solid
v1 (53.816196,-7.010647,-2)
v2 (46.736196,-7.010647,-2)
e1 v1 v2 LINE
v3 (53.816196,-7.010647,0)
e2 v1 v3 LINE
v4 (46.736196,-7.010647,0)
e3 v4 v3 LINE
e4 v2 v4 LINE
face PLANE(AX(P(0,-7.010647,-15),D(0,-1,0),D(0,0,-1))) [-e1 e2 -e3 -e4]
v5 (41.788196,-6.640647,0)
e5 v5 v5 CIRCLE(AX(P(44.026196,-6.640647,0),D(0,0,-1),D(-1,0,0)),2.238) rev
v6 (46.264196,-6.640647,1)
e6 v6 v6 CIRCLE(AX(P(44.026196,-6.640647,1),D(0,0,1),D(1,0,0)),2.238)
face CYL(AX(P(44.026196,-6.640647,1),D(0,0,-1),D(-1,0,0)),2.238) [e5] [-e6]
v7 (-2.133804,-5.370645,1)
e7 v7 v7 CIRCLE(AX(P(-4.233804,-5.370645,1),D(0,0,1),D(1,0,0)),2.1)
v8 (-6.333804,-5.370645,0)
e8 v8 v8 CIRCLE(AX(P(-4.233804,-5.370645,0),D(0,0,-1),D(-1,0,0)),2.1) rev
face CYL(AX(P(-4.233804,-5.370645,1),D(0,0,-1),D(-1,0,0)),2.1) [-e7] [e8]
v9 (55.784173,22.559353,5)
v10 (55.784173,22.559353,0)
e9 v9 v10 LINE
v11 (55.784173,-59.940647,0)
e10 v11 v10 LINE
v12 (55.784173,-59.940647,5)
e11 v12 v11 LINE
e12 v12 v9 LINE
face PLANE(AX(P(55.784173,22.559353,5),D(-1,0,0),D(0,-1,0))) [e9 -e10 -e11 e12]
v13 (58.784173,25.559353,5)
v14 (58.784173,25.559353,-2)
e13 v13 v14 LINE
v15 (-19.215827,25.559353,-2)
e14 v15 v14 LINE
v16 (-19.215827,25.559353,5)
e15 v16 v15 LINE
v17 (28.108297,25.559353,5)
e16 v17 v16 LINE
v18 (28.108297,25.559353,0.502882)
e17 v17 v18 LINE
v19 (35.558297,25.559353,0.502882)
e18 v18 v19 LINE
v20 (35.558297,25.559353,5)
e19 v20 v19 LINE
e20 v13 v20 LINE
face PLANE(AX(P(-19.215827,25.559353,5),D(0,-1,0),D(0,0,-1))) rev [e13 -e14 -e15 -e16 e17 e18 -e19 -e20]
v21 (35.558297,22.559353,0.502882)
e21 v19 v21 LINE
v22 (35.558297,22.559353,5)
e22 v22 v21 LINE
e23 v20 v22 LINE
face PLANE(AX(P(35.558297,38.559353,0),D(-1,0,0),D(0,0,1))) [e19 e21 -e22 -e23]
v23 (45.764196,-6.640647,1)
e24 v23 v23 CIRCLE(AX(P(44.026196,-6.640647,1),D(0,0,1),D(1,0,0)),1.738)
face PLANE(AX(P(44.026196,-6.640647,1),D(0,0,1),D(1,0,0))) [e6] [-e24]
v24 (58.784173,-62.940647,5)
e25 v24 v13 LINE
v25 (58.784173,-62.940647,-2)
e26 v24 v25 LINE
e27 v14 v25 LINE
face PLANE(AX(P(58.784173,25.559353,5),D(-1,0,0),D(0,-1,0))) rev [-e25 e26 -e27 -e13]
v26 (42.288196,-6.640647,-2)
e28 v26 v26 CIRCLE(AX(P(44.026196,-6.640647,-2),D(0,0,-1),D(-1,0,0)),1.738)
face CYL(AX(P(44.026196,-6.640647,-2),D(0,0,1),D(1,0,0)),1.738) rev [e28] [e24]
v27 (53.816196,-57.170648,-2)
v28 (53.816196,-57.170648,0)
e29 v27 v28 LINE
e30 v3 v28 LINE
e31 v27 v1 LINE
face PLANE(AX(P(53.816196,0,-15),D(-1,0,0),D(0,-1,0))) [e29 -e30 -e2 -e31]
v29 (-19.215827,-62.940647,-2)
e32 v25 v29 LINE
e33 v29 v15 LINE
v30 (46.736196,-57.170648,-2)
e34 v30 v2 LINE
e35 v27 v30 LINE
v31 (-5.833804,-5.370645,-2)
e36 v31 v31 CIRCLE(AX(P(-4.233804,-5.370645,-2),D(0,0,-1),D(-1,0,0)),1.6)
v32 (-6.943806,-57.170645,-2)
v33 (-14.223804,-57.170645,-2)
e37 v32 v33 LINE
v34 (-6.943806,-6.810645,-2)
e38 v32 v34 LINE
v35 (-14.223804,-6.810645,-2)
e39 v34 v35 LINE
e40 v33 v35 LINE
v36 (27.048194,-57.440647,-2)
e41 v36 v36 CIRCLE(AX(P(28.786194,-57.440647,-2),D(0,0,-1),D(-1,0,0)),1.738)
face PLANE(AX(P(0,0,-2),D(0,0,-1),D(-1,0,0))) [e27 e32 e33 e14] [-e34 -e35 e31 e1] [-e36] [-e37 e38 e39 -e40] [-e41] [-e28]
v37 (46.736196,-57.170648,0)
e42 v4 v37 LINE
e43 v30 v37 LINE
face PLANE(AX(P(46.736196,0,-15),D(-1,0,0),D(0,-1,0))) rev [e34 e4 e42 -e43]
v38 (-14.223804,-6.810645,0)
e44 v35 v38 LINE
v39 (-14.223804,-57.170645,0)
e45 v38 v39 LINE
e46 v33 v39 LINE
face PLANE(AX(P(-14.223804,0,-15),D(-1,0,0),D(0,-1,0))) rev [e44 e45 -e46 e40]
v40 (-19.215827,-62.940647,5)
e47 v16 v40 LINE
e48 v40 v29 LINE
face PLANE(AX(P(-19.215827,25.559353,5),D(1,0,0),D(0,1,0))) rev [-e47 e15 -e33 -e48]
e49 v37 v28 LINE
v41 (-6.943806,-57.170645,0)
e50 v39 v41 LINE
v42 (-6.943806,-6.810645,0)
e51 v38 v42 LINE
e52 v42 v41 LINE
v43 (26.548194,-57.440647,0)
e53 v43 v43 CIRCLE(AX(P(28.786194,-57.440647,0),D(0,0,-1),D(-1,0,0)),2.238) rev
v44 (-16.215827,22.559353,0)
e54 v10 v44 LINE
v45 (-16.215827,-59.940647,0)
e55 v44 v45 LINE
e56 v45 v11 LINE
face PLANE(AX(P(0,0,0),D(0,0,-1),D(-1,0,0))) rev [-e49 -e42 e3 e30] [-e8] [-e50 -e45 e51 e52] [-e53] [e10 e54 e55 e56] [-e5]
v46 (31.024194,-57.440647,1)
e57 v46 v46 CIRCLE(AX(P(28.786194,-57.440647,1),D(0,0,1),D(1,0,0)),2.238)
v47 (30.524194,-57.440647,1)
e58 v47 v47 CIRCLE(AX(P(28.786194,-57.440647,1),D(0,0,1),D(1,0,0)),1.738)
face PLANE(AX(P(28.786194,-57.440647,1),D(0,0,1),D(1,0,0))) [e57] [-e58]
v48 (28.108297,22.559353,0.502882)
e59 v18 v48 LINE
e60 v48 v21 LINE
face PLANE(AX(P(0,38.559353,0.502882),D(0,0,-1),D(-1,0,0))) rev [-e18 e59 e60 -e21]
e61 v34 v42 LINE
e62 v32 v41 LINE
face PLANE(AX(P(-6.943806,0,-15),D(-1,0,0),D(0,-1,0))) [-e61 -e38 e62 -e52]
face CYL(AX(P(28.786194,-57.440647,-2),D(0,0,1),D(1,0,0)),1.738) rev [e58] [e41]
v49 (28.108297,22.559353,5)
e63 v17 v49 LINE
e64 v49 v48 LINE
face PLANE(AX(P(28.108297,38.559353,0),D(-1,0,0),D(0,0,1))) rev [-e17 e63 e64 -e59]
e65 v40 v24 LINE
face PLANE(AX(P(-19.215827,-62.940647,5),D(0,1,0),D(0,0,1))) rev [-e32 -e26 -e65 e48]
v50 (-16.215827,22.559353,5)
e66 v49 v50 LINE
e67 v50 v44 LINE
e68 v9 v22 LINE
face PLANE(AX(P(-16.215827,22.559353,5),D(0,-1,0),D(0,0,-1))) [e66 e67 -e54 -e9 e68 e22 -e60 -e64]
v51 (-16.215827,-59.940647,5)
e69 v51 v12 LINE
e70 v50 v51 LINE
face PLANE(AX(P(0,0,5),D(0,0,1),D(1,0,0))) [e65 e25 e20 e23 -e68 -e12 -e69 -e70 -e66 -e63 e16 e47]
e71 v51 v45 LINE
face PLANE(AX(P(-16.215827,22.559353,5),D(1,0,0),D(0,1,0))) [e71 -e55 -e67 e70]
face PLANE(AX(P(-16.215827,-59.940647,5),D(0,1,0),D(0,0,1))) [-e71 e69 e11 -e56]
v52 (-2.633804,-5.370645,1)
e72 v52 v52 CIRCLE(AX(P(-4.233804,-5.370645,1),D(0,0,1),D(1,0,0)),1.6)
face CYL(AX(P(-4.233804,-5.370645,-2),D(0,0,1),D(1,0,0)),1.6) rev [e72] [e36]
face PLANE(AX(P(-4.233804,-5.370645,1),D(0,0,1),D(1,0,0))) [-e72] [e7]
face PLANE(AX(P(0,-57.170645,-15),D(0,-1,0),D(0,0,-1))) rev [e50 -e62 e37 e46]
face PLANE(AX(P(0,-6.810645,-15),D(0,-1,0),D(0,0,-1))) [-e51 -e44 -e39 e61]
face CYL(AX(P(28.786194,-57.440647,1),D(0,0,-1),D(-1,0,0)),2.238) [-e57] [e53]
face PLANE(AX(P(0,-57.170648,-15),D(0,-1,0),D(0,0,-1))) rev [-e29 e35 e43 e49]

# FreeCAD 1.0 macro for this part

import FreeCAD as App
import Part
import Sketcher
Q = App.Units.Quantity

doc = App.newDocument("Part")
body = doc.addObject("PartDesign::Body", "Body")

# Sketch on XY plane
sketch1 = doc.addObject("Sketcher::SketchObject", "Sketch")
body.addObject(sketch1)
sketch1.AttachmentSupport = (doc.XY_Plane, [""])
sketch1.MapMode = "FlatFace"
sketch1.addGeometry([
    Part.LineSegment(App.Vector(-19.215827, 25.559353, 0), App.Vector(-19.215827, -62.940647, 0)),  # 0
    Part.LineSegment(App.Vector(-19.215827, -62.940647, 0), App.Vector(58.784173, -62.940647, 0)),  # 1
    Part.LineSegment(App.Vector(58.784173, -62.940647, 0), App.Vector(58.784173, 25.559353, 0)),  # 2
    Part.LineSegment(App.Vector(58.784173, 25.559353, 0), App.Vector(-19.215827, 25.559353, 0)),  # 3
    Part.LineSegment(App.Vector(55.784173, -59.940647, 0), App.Vector(-16.215827, -59.940647, 0)),  # 4
    Part.LineSegment(App.Vector(-16.215827, -59.940647, 0), App.Vector(-16.215827, 22.559353, 0)),  # 5
    Part.LineSegment(App.Vector(-16.215827, 22.559353, 0), App.Vector(55.784173, 22.559353, 0)),  # 6
    Part.LineSegment(App.Vector(55.784173, 22.559353, 0), App.Vector(55.784173, -59.940647, 0)),  # 7
], False)
sketch1.addConstraint([
    Sketcher.Constraint("Coincident", 0, 2, 1, 1),
    Sketcher.Constraint("Coincident", 1, 2, 2, 1),
    Sketcher.Constraint("Coincident", 2, 2, 3, 1),
    Sketcher.Constraint("Coincident", 3, 2, 0, 1),
    Sketcher.Constraint("Coincident", 4, 2, 5, 1),
    Sketcher.Constraint("Coincident", 5, 2, 6, 1),
    Sketcher.Constraint("Coincident", 6, 2, 7, 1),
    Sketcher.Constraint("Coincident", 7, 2, 4, 1),
    Sketcher.Constraint("Vertical", 0),
    Sketcher.Constraint("Horizontal", 1),
    Sketcher.Constraint("Vertical", 2),
    Sketcher.Constraint("Horizontal", 3),
    Sketcher.Constraint("Horizontal", 4),
    Sketcher.Constraint("Vertical", 5),
    Sketcher.Constraint("Horizontal", 6),
    Sketcher.Constraint("Vertical", 7),
    Sketcher.Constraint("DistanceX", 1, 1, 1, 2, Q("78 mm")),
    Sketcher.Constraint("DistanceX", 4, 2, 4, 1, Q("72 mm")),
    Sketcher.Constraint("DistanceY", 0, 2, 0, 1, Q("88.5 mm")),
    Sketcher.Constraint("DistanceY", 5, 1, 5, 2, Q("82.5 mm")),
    Sketcher.Constraint("DistanceX", 0, 2, 4, 2, Q("3 mm")),
    Sketcher.Constraint("DistanceY", 0, 2, 4, 2, Q("3 mm")),
    Sketcher.Constraint("DistanceX", 0, 2, -1, 1, Q("19.215827 mm")),
    Sketcher.Constraint("DistanceY", 0, 2, -1, 1, Q("62.940647 mm")),
])
pad1 = doc.addObject("PartDesign::Pad", "Pad")
body.addObject(pad1)
pad1.Profile = sketch1
pad1.Length = 5

# Sketch on XY plane
sketch2 = doc.addObject("Sketcher::SketchObject", "Sketch001")
body.addObject(sketch2)
sketch2.AttachmentSupport = (doc.XY_Plane, [""])
sketch2.MapMode = "FlatFace"
sketch2.addGeometry([
    Part.LineSegment(App.Vector(58.784173, 25.559353, 0), App.Vector(58.784173, -62.940647, 0)),  # 0
    Part.LineSegment(App.Vector(58.784173, -62.940647, 0), App.Vector(-19.215827, -62.940647, 0)),  # 1
    Part.LineSegment(App.Vector(-19.215827, -62.940647, 0), App.Vector(-19.215827, 25.559353, 0)),  # 2
    Part.LineSegment(App.Vector(-19.215827, 25.559353, 0), App.Vector(58.784173, 25.559353, 0)),  # 3
    Part.Circle(App.Vector(28.786194, -57.440647, 0), App.Vector(0, 0, 1), 1.738),  # 4
    Part.Circle(App.Vector(44.026196, -6.640647, 0), App.Vector(0, 0, 1), 1.738),  # 5
    Part.Circle(App.Vector(-4.233804, -5.370645, 0), App.Vector(0, 0, 1), 1.6),  # 6
], False)
sketch2.addConstraint([
    Sketcher.Constraint("Coincident", 0, 2, 1, 1),
    Sketcher.Constraint("Coincident", 1, 2, 2, 1),
    Sketcher.Constraint("Coincident", 2, 2, 3, 1),
    Sketcher.Constraint("Coincident", 3, 2, 0, 1),
    Sketcher.Constraint("Vertical", 0),
    Sketcher.Constraint("Horizontal", 1),
    Sketcher.Constraint("Vertical", 2),
    Sketcher.Constraint("Horizontal", 3),
    Sketcher.Constraint("Equal", 4, 5),
    Sketcher.Constraint("Diameter", 6, Q("3.2 mm")),
    Sketcher.Constraint("DistanceX", 1, 2, 1, 1, Q("78 mm")),
    Sketcher.Constraint("Diameter", 4, Q("3.476 mm")),
    Sketcher.Constraint("DistanceY", 0, 2, 0, 1, Q("88.5 mm")),
    Sketcher.Constraint("DistanceY", 4, 3, 2, 2, Q("82.999999 mm")),
    Sketcher.Constraint("DistanceY", 4, 3, 5, 3, Q("50.799999 mm")),
    Sketcher.Constraint("DistanceX", 4, 3, 5, 3, Q("15.240002 mm")),
    Sketcher.Constraint("DistanceX", 6, 3, 5, 3, Q("48.26 mm")),
    Sketcher.Constraint("DistanceY", 5, 3, 6, 3, Q("1.270002 mm")),
    Sketcher.Constraint("DistanceX", 4, 3, 0, 2, Q("29.997979 mm")),
    Sketcher.Constraint("DistanceX", -1, 1, 4, 3, Q("28.786194 mm")),
    Sketcher.Constraint("DistanceY", 4, 3, -1, 1, Q("57.440647 mm")),
])
pad2 = doc.addObject("PartDesign::Pad", "Pad001")
body.addObject(pad2)
pad2.Profile = sketch2
pad2.Length = 2
pad2.Reversed = True

# Sketch on XY plane
sketch3 = doc.addObject("Sketcher::SketchObject", "Sketch002")
body.addObject(sketch3)
sketch3.AttachmentSupport = (doc.XY_Plane, [""])
sketch3.MapMode = "FlatFace"
sketch3.addGeometry([
    Part.LineSegment(App.Vector(-14.223804, -6.810645, 0), App.Vector(-14.223804, -57.170645, 0)),  # 0
    Part.LineSegment(App.Vector(-14.223804, -57.170645, 0), App.Vector(-6.943806, -57.170645, 0)),  # 1
    Part.LineSegment(App.Vector(-6.943806, -57.170645, 0), App.Vector(-6.943806, -6.810645, 0)),  # 2
    Part.LineSegment(App.Vector(-6.943806, -6.810645, 0), App.Vector(-14.223804, -6.810645, 0)),  # 3
    Part.LineSegment(App.Vector(46.736196, -7.010647, 0), App.Vector(46.736196, -57.170648, 0)),  # 4
    Part.LineSegment(App.Vector(46.736196, -57.170648, 0), App.Vector(53.816196, -57.170648, 0)),  # 5
    Part.LineSegment(App.Vector(53.816196, -57.170648, 0), App.Vector(53.816196, -7.010647, 0)),  # 6
    Part.LineSegment(App.Vector(53.816196, -7.010647, 0), App.Vector(46.736196, -7.010647, 0)),  # 7
], False)
sketch3.addConstraint([
    Sketcher.Constraint("Coincident", 0, 2, 1, 1),
    Sketcher.Constraint("Coincident", 1, 2, 2, 1),
    Sketcher.Constraint("Coincident", 2, 2, 3, 1),
    Sketcher.Constraint("Coincident", 3, 2, 0, 1),
    Sketcher.Constraint("Coincident", 4, 2, 5, 1),
    Sketcher.Constraint("Coincident", 5, 2, 6, 1),
    Sketcher.Constraint("Coincident", 6, 2, 7, 1),
    Sketcher.Constraint("Coincident", 7, 2, 4, 1),
    Sketcher.Constraint("Vertical", 0),
    Sketcher.Constraint("Horizontal", 1),
    Sketcher.Constraint("Vertical", 2),
    Sketcher.Constraint("Horizontal", 3),
    Sketcher.Constraint("Vertical", 4),
    Sketcher.Constraint("Horizontal", 5),
    Sketcher.Constraint("Vertical", 6),
    Sketcher.Constraint("Horizontal", 7),
    Sketcher.Constraint("DistanceX", 1, 1, 1, 2, Q("7.279998 mm")),
    Sketcher.Constraint("DistanceX", 5, 1, 5, 2, Q("7.08 mm")),
    Sketcher.Constraint("DistanceY", 0, 2, 0, 1, Q("50.36 mm")),
    Sketcher.Constraint("DistanceY", 4, 2, 4, 1, Q("50.16 mm")),
    Sketcher.Constraint("DistanceX", 1, 2, 4, 2, Q("53.680002 mm")),
    Sketcher.Constraint("DistanceX", 0, 2, -1, 1, Q("14.223804 mm")),
    Sketcher.Constraint("DistanceY", 0, 2, -1, 1, Q("57.170645 mm")),
    Sketcher.Constraint("DistanceY", 4, 2, -1, 1, Q("57.170648 mm")),
])
pocket1 = doc.addObject("PartDesign::Pocket", "Pocket")
body.addObject(pocket1)
pocket1.Profile = sketch3
pocket1.Length = 15

# Sketch on XZ plane
sketch4 = doc.addObject("Sketcher::SketchObject", "Sketch003")
body.addObject(sketch4)
sketch4.AttachmentSupport = (doc.XZ_Plane, [""])
sketch4.MapMode = "FlatFace"
sketch4.AttachmentOffset = App.Placement(App.Vector(0, 0, -22.559353), App.Rotation())
sketch4.addGeometry([
    Part.LineSegment(App.Vector(28.108297, 5, 0), App.Vector(28.108297, 0.502882, 0)),
    Part.LineSegment(App.Vector(28.108297, 0.502882, 0), App.Vector(35.558297, 0.502882, 0)),
    Part.LineSegment(App.Vector(35.558297, 0.502882, 0), App.Vector(35.558297, 5, 0)),
    Part.LineSegment(App.Vector(35.558297, 5, 0), App.Vector(28.108297, 5, 0)),
], False)
sketch4.addConstraint([
    Sketcher.Constraint("Coincident", 0, 2, 1, 1),
    Sketcher.Constraint("Coincident", 1, 2, 2, 1),
    Sketcher.Constraint("Coincident", 2, 2, 3, 1),
    Sketcher.Constraint("Coincident", 3, 2, 0, 1),
    Sketcher.Constraint("Vertical", 0),
    Sketcher.Constraint("Horizontal", 1),
    Sketcher.Constraint("Vertical", 2),
    Sketcher.Constraint("Horizontal", 3),
    Sketcher.Constraint("DistanceY", -1, 1, 2, 2, Q("5 mm")),
    Sketcher.Constraint("DistanceX", 1, 1, 1, 2, Q("7.45 mm")),
    Sketcher.Constraint("DistanceY", 0, 2, 0, 1, Q("4.497118 mm")),
    Sketcher.Constraint("DistanceX", -1, 1, 0, 2, Q("28.108297 mm")),
])
pocket2 = doc.addObject("PartDesign::Pocket", "Pocket001")
body.addObject(pocket2)
pocket2.Profile = sketch4
pocket2.Length = 16

# Sketch on XY plane
sketch5 = doc.addObject("Sketcher::SketchObject", "Sketch004")
body.addObject(sketch5)
sketch5.AttachmentSupport = (doc.XY_Plane, [""])
sketch5.MapMode = "FlatFace"
sketch5.addGeometry([
    Part.Circle(App.Vector(-4.233804, -5.370645, 0), App.Vector(0, 0, 1), 2.1),
    Part.Circle(App.Vector(44.026196, -6.640647, 0), App.Vector(0, 0, 1), 2.238),
    Part.Circle(App.Vector(28.786194, -57.440647, 0), App.Vector(0, 0, 1), 2.238),
], False)
sketch5.addConstraint([
    Sketcher.Constraint("Equal", 1, 2),
    Sketcher.Constraint("Diameter", 0, Q("4.2 mm")),
    Sketcher.Constraint("Diameter", 1, Q("4.476 mm")),
    Sketcher.Constraint("DistanceY", 2, 3, 1, 3, Q("50.799999 mm")),
    Sketcher.Constraint("DistanceX", 0, 3, 1, 3, Q("48.26 mm")),
    Sketcher.Constraint("DistanceY", 1, 3, 0, 3, Q("1.270002 mm")),
    Sketcher.Constraint("DistanceX", 2, 3, 1, 3, Q("15.240002 mm")),
    Sketcher.Constraint("DistanceX", 0, 3, -1, 1, Q("4.233804 mm")),
    Sketcher.Constraint("DistanceY", 0, 3, -1, 1, Q("5.370645 mm")),
])
pad3 = doc.addObject("PartDesign::Pad", "Pad002")
body.addObject(pad3)
pad3.Profile = sketch5
pad3.Length = 1

# Sketch on XY plane
sketch6 = doc.addObject("Sketcher::SketchObject", "Sketch005")
body.addObject(sketch6)
sketch6.AttachmentSupport = (doc.XY_Plane, [""])
sketch6.MapMode = "FlatFace"
sketch6.AttachmentOffset = App.Placement(App.Vector(0, 0, 15), App.Rotation())
sketch6.addGeometry([
    Part.Circle(App.Vector(44.026196, -6.640647, 0), App.Vector(0, 0, 1), 1.738),
    Part.Circle(App.Vector(-4.233804, -5.370645, 0), App.Vector(0, 0, 1), 1.6),
    Part.Circle(App.Vector(28.786194, -57.440647, 0), App.Vector(0, 0, 1), 1.738),
], False)
sketch6.addConstraint([
    Sketcher.Constraint("Equal", 0, 2),
    Sketcher.Constraint("Diameter", 1, Q("3.2 mm")),
    Sketcher.Constraint("Diameter", 0, Q("3.476 mm")),
    Sketcher.Constraint("DistanceY", 2, 3, 0, 3, Q("50.799999 mm")),
    Sketcher.Constraint("DistanceX", 1, 3, 0, 3, Q("48.26 mm")),
    Sketcher.Constraint("DistanceY", 0, 3, 1, 3, Q("1.270002 mm")),
    Sketcher.Constraint("DistanceX", 2, 3, 0, 3, Q("15.240002 mm")),
    Sketcher.Constraint("DistanceX", -1, 1, 0, 3, Q("44.026196 mm")),
    Sketcher.Constraint("DistanceY", 0, 3, -1, 1, Q("6.640647 mm")),
])
pocket3 = doc.addObject("PartDesign::Pocket", "Pocket002")
body.addObject(pocket3)
pocket3.Profile = sketch6
pocket3.Length = 15

doc.recompute()
